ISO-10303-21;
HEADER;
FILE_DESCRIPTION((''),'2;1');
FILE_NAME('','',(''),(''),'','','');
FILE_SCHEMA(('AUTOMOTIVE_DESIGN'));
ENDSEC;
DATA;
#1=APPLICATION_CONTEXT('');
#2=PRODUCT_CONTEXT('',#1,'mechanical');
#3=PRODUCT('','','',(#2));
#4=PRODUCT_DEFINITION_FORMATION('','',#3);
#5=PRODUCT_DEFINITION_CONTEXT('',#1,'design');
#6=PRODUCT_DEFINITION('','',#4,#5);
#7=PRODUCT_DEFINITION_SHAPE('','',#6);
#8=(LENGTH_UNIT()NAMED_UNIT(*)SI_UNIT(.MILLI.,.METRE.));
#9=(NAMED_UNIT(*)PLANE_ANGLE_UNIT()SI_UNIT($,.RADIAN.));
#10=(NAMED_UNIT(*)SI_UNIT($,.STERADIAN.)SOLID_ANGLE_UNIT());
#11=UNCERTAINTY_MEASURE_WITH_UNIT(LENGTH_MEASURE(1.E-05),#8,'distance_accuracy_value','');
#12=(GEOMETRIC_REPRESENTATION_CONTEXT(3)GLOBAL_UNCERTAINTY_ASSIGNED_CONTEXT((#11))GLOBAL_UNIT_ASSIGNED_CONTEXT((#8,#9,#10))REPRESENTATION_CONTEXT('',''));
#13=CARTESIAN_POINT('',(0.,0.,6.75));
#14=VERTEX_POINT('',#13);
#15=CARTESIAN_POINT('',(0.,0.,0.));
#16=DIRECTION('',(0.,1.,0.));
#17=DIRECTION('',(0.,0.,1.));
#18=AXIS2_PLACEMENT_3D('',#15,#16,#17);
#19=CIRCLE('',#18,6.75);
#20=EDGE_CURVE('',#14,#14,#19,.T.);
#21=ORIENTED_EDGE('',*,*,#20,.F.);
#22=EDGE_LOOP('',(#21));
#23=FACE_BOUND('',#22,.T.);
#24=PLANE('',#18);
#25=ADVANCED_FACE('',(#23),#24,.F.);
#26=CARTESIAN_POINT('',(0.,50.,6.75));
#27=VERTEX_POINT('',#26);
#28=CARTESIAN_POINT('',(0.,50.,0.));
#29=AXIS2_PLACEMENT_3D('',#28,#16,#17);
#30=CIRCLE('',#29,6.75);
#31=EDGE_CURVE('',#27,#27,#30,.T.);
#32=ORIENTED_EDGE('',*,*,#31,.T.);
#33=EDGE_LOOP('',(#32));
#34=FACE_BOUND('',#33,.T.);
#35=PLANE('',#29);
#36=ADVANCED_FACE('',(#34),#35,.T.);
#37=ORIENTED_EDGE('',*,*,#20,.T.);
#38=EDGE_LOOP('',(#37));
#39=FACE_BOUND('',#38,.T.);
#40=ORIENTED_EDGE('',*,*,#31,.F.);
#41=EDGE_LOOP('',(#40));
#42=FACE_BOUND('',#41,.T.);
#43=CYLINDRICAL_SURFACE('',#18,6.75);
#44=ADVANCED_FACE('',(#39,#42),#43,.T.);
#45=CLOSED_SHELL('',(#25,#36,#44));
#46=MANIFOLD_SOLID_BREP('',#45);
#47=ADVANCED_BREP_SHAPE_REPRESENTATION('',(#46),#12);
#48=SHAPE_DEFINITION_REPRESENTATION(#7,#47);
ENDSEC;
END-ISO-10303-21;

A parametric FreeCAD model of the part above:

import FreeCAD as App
import Part
import Sketcher

V = App.Vector

doc = App.newDocument("Part")
body = doc.addObject("PartDesign::Body", "Body")

# Sketch on XZ plane
sketch1 = body.newObject("Sketcher::SketchObject", "Sketch")
sketch1.AttachmentSupport = (doc.getObject("XZ_Plane"), [""])
sketch1.MapMode = "FlatFace"
sketch1.addGeometry(Part.Circle(V(0, 0, 0), V(0, 0, 1), 6.75), False)
sketch1.addConstraint(Sketcher.Constraint("Coincident", 0, 3, -1, 1))
sketch1.addConstraint(Sketcher.Constraint("Diameter", 0, 13.5))

# Sketch on XY plane
sketch2 = body.newObject("Sketcher::SketchObject", "Sketch001")
sketch2.AttachmentSupport = (doc.getObject("XY_Plane"), [""])
sketch2.MapMode = "FlatFace"
sketch2.addGeometry(Part.LineSegment(V(0, 0, 0), V(0, 50, 0)), False)
sketch2.addConstraint(Sketcher.Constraint("Vertical", 0))
sketch2.addConstraint(Sketcher.Constraint("Coincident", 0, 1, -1, 1))
sketch2.addConstraint(Sketcher.Constraint("DistanceY", 0, 1, 0, 2, 50.0))
doc.recompute()

additivepipe = body.newObject("PartDesign::AdditivePipe", "AdditivePipe")
additivepipe.Profile = sketch1
additivepipe.Spine = (sketch2, ["Edge1"])

doc.recompute()
